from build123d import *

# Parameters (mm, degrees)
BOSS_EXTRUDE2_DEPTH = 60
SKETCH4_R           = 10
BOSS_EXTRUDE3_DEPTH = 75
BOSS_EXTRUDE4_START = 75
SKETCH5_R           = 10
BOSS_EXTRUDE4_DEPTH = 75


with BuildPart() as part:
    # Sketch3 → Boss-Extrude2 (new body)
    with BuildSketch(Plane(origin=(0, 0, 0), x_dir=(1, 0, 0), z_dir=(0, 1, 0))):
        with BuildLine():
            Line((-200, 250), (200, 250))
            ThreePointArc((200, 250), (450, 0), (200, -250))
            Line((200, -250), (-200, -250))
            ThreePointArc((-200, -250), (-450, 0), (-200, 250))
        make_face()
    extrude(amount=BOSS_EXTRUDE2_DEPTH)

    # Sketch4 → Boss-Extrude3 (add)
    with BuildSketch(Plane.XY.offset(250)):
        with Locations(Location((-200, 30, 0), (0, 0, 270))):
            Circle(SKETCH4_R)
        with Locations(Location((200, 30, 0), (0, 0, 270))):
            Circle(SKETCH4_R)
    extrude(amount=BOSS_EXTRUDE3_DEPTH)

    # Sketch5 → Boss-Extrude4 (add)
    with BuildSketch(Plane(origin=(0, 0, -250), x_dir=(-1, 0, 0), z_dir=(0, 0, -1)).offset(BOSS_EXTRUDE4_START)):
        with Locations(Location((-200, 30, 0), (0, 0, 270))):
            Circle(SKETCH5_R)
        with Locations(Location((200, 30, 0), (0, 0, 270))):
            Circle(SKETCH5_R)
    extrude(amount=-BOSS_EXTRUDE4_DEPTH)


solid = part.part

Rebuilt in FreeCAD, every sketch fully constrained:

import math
import FreeCAD as App
import Part
import Sketcher
Q = App.Units.Quantity

doc = App.newDocument("Part")
body = doc.addObject("PartDesign::Body", "Body")

sketch1 = body.newObject("Sketcher::SketchObject", "Sketch")
sketch1.AttachmentSupport = (doc.getObject("XZ_Plane"), [""])
sketch1.MapMode = "FlatFace"
sketch1.addGeometry([
    Part.LineSegment(App.Vector(200, -250, 0), App.Vector(-200, -250, 0)),
    Part.ArcOfCircle(Part.Circle(App.Vector(-200, 0, 0), App.Vector(0, 0, 1), 250), math.radians(90), math.radians(270)),
    Part.LineSegment(App.Vector(-200, 250, 0), App.Vector(200, 250, 0)),
    Part.ArcOfCircle(Part.Circle(App.Vector(200, 0, 0), App.Vector(0, 0, 1), 250), math.radians(-90), math.radians(90)),
], False)
sketch1.addConstraint([
    Sketcher.Constraint("Tangent", 0, 2, 1, 2),
    Sketcher.Constraint("Tangent", 1, 1, 2, 1),
    Sketcher.Constraint("Tangent", 2, 2, 3, 2),
    Sketcher.Constraint("Tangent", 3, 1, 0, 1),
    Sketcher.Constraint("Horizontal", 0),
    Sketcher.Constraint("Horizontal", 2),
    Sketcher.Constraint("Symmetric", 1, 3, 3, 3, -1, 1),
    Sketcher.Constraint("Radius", 1, Q("250 mm")),
    Sketcher.Constraint("DistanceX", 0, 2, 0, 1, Q("400 mm")),
])
pad1 = body.newObject("PartDesign::Pad", "Pad")
pad1.Profile = sketch1
pad1.Length = 60
pad1.Reversed = True

sketch2 = body.newObject("Sketcher::SketchObject", "Sketch001")
sketch2.AttachmentSupport = (doc.getObject("XY_Plane"), [""])
sketch2.MapMode = "FlatFace"
sketch2.AttachmentOffset = App.Placement(App.Vector(0, 0, 250), App.Rotation())
sketch2.addGeometry([
    Part.Circle(App.Vector(-200, 30, 0), App.Vector(0, 0, 1), 10),
    Part.Circle(App.Vector(200, 30, 0), App.Vector(0, 0, 1), 10),
], False)
sketch2.addConstraint([
    Sketcher.Constraint("Equal", 0, 1),
    Sketcher.Constraint("Symmetric", 0, 3, 1, 3, -2),
    Sketcher.Constraint("Diameter", 0, Q("20 mm")),
    Sketcher.Constraint("DistanceX", 0, 3, -1, 1, Q("200 mm")),
    Sketcher.Constraint("DistanceY", -1, 1, 0, 3, Q("30 mm")),
])
pad2 = body.newObject("PartDesign::Pad", "Pad001")
pad2.Profile = sketch2
pad2.Length = 75

sketch3 = body.newObject("Sketcher::SketchObject", "Sketch002")
sketch3.AttachmentSupport = (doc.getObject("XY_Plane"), [""])
sketch3.MapMode = "FlatFace"
sketch3.AttachmentOffset = App.Placement(App.Vector(0, 0, -325), App.Rotation())
sketch3.addGeometry([
    Part.Circle(App.Vector(200, 30, 0), App.Vector(0, 0, 1), 10),
    Part.Circle(App.Vector(-200, 30, 0), App.Vector(0, 0, 1), 10),
], False)
sketch3.addConstraint([
    Sketcher.Constraint("Equal", 0, 1),
    Sketcher.Constraint("Symmetric", 0, 3, 1, 3, -2),
    Sketcher.Constraint("Diameter", 0, Q("20 mm")),
    Sketcher.Constraint("DistanceX", -1, 1, 0, 3, Q("200 mm")),
    Sketcher.Constraint("DistanceY", -1, 1, 0, 3, Q("30 mm")),
])
pad3 = body.newObject("PartDesign::Pad", "Pad002")
pad3.Profile = sketch3
pad3.Length = 75

doc.recompute()
